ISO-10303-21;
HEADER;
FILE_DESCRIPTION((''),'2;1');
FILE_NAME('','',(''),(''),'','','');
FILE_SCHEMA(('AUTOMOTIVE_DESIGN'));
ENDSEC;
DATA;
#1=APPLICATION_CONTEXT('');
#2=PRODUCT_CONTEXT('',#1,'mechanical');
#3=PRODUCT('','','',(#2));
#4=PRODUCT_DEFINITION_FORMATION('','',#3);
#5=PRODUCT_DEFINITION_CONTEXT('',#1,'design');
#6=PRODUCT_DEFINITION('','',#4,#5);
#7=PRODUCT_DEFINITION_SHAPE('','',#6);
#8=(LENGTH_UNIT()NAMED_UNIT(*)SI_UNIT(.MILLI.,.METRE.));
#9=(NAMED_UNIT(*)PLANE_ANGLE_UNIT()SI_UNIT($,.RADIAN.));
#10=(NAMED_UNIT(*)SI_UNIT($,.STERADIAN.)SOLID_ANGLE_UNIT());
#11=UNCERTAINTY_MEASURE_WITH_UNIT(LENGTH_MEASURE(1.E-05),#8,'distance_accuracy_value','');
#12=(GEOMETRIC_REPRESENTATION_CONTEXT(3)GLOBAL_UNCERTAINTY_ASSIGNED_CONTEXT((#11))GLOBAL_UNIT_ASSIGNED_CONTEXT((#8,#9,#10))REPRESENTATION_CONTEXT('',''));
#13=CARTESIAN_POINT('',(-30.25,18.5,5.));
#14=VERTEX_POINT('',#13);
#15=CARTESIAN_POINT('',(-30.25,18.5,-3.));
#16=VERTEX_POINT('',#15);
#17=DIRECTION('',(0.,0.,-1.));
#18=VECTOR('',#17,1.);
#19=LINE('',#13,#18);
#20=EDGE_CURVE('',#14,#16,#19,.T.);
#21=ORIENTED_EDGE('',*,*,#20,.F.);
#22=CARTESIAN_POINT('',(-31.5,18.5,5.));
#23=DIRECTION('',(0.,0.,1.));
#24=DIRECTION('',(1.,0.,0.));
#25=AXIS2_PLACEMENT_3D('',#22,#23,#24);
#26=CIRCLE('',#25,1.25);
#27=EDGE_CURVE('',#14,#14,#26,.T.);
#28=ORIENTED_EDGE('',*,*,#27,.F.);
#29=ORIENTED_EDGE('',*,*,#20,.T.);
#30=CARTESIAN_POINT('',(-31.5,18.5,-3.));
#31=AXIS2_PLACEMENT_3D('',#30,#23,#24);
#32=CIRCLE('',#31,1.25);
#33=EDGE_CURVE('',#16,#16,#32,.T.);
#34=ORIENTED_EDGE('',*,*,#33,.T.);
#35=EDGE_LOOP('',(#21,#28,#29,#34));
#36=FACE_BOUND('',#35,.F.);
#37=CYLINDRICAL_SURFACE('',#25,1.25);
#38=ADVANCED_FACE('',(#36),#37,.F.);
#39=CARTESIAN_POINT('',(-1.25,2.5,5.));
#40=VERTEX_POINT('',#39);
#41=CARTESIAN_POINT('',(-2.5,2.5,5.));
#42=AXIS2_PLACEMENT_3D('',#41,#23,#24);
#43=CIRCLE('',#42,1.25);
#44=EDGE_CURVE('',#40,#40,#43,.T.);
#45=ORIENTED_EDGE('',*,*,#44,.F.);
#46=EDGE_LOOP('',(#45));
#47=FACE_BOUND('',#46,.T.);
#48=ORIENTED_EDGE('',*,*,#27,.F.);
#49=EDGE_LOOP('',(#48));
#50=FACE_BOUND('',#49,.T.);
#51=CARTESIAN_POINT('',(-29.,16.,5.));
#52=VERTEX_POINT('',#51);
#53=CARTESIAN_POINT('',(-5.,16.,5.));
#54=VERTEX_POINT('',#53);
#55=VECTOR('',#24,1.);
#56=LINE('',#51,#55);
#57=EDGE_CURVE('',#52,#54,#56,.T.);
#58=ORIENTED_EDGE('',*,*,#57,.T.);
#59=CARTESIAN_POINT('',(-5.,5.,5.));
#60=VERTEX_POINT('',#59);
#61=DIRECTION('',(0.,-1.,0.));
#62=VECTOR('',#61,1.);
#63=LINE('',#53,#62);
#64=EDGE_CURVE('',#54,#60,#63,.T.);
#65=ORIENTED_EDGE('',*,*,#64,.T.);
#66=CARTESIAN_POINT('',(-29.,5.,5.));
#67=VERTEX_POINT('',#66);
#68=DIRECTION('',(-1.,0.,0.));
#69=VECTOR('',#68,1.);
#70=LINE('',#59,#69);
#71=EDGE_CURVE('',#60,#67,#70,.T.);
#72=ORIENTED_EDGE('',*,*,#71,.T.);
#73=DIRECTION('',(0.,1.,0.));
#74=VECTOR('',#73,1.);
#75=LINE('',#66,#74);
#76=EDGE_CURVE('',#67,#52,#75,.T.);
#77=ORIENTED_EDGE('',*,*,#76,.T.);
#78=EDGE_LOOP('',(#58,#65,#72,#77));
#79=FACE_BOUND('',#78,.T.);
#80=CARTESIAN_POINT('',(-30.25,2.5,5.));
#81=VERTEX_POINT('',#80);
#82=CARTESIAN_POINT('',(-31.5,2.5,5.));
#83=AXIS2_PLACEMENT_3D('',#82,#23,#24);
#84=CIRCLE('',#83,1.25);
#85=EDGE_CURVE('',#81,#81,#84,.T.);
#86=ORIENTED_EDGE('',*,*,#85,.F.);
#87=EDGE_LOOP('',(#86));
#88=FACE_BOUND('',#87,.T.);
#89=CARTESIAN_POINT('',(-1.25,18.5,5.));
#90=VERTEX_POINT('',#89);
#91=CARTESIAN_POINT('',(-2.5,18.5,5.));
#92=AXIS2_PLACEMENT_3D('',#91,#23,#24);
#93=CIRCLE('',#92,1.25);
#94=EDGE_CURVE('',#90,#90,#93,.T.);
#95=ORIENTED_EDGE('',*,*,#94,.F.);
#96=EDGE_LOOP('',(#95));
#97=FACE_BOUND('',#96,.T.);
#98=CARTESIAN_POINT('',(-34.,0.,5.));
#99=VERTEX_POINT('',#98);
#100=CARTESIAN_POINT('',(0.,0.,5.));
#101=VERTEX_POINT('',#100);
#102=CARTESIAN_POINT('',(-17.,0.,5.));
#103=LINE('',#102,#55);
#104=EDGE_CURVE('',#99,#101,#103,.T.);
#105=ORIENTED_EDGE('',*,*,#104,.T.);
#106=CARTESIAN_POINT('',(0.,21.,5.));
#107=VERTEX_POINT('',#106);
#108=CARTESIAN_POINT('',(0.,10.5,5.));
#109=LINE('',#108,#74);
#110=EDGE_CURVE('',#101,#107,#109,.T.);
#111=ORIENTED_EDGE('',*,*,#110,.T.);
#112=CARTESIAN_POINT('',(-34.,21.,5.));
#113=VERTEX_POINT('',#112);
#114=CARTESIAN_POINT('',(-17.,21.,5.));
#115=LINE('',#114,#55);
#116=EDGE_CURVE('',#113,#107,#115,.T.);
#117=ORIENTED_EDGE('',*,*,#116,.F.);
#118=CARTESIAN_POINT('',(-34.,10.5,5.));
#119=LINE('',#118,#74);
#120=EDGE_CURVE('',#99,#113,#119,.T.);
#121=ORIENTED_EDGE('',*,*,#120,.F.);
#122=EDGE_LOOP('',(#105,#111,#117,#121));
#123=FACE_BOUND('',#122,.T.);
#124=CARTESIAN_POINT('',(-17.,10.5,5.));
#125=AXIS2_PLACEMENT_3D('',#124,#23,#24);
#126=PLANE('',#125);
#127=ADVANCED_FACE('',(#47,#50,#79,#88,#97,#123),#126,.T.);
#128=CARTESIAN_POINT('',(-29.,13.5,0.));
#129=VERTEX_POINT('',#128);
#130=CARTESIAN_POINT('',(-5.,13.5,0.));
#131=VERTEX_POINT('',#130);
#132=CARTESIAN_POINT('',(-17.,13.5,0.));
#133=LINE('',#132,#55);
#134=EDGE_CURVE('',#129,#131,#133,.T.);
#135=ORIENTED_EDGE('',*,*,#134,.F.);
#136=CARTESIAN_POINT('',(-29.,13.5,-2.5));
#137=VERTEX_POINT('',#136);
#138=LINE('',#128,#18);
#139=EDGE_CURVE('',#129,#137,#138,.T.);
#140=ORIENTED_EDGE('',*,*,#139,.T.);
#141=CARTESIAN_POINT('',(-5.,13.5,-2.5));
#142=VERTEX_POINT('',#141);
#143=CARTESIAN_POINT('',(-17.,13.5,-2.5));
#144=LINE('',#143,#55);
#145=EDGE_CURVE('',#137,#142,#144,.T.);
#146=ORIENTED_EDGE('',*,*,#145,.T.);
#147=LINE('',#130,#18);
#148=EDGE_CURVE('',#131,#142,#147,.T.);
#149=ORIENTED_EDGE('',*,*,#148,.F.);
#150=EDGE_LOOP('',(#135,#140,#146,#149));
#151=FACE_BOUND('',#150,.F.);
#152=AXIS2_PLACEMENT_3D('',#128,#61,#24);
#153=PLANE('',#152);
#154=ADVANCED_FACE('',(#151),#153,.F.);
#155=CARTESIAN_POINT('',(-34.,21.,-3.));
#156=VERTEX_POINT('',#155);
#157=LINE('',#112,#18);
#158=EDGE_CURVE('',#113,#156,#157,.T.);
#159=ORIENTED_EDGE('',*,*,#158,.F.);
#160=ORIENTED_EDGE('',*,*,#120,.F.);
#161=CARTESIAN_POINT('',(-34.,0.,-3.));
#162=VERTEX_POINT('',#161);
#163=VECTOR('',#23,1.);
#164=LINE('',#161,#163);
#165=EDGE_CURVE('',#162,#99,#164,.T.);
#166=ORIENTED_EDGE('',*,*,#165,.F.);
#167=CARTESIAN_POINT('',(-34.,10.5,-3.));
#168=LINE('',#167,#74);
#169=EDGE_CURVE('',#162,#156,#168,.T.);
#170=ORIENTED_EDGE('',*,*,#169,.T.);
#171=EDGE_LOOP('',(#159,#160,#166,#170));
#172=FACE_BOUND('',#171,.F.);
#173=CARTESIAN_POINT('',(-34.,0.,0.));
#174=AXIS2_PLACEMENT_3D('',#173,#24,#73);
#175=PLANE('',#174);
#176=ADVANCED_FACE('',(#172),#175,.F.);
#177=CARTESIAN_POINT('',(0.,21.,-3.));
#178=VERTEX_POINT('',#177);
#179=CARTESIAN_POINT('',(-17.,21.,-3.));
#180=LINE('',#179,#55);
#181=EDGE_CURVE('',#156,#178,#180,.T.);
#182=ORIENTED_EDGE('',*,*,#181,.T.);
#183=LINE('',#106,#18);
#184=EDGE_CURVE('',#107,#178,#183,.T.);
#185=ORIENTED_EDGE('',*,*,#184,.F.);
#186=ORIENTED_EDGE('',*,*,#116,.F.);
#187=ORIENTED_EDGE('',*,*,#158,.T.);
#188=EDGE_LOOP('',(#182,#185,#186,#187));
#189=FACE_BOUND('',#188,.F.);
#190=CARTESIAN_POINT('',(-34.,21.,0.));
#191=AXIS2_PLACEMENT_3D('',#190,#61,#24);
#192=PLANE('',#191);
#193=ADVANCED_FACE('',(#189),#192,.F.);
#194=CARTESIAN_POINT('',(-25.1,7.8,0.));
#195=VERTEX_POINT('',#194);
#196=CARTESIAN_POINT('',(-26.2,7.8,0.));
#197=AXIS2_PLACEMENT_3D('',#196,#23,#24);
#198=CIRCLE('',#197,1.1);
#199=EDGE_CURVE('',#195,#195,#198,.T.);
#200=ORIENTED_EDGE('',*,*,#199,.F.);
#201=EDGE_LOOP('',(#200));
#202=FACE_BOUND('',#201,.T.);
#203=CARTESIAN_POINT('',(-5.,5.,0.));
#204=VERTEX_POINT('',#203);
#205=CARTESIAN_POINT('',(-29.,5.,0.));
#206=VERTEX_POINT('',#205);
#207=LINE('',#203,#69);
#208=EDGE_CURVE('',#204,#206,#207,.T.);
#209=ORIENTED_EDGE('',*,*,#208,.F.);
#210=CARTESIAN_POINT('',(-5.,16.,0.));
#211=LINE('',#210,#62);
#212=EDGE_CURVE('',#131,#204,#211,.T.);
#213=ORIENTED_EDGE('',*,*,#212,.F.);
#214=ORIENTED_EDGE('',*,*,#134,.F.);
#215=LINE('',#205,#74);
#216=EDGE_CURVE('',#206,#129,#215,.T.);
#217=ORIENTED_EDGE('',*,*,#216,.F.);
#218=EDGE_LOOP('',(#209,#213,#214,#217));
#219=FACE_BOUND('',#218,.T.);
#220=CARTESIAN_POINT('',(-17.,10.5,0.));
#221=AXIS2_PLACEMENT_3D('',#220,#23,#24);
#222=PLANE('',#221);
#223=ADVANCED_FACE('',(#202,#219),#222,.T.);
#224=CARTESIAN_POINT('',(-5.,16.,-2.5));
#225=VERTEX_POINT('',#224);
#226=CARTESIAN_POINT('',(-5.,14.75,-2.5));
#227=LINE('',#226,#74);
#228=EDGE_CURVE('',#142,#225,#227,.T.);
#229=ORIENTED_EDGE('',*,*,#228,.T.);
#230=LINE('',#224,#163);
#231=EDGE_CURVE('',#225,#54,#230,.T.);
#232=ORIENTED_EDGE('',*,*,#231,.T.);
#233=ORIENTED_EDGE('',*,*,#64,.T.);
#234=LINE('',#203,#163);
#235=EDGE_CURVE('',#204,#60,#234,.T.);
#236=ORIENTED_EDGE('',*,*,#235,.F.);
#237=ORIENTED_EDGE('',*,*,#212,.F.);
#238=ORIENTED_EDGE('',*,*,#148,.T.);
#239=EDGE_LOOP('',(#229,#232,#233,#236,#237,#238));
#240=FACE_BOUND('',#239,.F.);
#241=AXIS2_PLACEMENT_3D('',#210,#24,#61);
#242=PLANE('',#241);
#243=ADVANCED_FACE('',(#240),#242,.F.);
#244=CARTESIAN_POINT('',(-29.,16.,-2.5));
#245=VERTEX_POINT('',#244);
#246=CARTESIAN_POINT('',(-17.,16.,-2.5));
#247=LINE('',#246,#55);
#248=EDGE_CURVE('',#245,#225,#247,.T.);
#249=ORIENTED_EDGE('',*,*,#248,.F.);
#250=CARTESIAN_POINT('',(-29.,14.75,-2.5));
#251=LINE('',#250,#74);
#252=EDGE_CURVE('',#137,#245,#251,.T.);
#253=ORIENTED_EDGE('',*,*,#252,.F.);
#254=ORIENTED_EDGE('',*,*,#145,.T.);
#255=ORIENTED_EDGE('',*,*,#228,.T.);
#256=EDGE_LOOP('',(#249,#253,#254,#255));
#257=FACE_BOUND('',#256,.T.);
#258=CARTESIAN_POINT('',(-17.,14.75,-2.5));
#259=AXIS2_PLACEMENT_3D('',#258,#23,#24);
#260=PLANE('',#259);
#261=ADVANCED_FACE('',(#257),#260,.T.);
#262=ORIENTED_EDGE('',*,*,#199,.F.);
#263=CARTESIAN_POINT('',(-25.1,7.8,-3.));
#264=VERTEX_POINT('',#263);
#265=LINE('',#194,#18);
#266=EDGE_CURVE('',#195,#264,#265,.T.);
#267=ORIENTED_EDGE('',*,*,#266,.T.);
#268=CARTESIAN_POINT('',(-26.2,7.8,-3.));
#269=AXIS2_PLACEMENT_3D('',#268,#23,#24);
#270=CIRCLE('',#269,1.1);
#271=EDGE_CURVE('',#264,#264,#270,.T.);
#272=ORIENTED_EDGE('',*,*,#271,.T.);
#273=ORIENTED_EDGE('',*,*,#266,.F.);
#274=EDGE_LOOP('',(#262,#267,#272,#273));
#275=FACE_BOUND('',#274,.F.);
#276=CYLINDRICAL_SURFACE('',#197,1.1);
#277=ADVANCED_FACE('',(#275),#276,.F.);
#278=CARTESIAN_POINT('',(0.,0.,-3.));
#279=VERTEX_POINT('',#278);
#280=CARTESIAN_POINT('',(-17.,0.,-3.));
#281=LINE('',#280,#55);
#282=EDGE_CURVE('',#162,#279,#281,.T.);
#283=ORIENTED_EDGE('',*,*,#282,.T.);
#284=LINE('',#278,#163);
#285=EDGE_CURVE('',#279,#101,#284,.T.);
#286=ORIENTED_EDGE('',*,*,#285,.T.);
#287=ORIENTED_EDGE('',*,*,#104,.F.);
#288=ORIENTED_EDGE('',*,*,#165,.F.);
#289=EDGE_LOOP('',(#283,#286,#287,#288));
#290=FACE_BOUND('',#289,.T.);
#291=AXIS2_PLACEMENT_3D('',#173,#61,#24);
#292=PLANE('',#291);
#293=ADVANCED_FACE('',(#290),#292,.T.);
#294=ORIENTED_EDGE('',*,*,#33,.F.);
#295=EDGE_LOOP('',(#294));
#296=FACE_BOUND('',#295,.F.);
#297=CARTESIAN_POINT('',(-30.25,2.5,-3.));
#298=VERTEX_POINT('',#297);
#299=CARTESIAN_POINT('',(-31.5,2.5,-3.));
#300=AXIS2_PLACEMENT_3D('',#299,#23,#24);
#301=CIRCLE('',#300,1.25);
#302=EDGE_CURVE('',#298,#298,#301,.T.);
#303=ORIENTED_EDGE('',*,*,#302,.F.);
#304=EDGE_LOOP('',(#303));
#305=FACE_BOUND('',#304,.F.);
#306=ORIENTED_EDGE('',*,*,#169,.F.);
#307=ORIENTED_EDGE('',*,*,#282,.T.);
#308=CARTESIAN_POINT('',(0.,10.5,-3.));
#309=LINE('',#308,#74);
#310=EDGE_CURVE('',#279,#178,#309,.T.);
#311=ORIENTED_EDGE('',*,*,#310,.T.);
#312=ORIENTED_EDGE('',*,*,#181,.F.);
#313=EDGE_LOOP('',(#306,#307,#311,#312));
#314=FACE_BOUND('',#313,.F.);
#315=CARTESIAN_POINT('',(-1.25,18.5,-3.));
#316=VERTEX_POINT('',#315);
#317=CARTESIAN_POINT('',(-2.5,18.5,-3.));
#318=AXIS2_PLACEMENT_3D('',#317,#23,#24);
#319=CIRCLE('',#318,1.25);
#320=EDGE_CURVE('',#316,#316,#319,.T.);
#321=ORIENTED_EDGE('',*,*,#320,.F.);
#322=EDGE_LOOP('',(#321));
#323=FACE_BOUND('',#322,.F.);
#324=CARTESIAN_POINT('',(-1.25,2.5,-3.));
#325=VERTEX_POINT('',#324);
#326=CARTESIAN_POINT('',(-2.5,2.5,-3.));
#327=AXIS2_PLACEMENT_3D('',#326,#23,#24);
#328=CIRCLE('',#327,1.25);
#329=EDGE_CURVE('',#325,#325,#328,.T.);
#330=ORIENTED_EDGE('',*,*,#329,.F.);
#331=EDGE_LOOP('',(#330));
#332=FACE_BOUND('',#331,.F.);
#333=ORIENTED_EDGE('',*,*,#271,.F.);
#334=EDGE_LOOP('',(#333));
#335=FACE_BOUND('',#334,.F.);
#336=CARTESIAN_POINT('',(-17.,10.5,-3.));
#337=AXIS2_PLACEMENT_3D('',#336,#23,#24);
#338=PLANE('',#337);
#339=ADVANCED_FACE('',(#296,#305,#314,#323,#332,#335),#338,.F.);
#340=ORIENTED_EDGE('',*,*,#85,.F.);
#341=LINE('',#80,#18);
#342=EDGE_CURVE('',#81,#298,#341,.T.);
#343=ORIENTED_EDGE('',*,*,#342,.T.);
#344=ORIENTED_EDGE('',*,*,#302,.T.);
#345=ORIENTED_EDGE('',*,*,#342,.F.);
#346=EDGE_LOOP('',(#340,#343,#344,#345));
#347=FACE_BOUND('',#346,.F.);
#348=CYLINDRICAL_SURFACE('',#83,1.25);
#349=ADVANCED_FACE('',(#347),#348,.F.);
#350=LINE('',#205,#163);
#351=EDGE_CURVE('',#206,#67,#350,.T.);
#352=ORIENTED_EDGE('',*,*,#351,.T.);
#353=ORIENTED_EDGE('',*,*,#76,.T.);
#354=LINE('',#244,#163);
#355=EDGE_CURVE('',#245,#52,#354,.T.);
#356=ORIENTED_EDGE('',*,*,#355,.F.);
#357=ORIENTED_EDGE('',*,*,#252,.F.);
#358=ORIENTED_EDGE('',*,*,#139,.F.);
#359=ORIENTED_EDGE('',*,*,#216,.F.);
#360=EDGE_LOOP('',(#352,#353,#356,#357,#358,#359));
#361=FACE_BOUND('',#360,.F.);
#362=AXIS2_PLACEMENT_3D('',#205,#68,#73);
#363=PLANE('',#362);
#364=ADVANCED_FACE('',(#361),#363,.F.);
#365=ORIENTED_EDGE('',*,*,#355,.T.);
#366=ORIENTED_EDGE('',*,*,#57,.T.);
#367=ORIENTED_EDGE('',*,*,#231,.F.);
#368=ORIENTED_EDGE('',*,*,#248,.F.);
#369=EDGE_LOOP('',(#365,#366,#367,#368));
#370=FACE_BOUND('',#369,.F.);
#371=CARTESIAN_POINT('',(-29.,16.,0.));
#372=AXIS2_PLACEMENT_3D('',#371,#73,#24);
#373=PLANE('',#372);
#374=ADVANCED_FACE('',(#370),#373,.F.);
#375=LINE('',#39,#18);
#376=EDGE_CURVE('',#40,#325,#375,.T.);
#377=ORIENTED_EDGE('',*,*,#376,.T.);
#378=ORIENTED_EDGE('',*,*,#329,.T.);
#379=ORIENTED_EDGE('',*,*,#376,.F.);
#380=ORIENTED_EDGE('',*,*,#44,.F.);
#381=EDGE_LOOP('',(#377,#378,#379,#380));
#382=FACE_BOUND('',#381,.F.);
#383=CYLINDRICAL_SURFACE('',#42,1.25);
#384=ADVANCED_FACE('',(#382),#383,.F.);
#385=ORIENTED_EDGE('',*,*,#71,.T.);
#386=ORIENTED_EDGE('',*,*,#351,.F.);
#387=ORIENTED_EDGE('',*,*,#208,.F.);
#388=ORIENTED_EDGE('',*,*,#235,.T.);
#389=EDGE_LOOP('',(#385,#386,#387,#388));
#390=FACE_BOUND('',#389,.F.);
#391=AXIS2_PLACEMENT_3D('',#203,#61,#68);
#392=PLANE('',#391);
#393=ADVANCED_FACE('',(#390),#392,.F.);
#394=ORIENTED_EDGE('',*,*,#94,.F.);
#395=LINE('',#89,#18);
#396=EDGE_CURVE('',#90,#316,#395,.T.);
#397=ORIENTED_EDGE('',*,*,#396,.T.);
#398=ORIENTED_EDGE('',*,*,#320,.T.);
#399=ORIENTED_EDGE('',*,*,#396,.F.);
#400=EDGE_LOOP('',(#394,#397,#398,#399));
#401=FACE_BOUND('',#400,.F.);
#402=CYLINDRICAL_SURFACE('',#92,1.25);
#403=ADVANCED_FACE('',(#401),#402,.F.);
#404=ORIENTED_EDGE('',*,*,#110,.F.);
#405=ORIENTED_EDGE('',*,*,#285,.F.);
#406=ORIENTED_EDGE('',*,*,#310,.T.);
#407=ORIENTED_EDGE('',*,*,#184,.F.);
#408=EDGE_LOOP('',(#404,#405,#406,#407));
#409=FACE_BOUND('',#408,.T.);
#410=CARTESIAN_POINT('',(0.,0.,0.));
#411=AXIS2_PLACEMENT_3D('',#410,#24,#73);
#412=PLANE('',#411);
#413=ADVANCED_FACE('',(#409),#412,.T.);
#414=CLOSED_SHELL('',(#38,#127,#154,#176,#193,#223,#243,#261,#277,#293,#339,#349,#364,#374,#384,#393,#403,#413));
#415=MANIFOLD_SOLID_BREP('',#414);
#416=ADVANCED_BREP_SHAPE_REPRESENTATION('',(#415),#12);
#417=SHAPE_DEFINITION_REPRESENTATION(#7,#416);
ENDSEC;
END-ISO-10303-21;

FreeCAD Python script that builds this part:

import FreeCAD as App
import Part
import Sketcher
Q = App.Units.Quantity


def add_polygon(sketch, points):
    """Adds a closed chain of lines whose ends are joined by coincident constraints."""
    first, n = sketch.GeometryCount, len(points)
    for a, b in zip(points, points[1:] + points[:1]):
        sketch.addGeometry(Part.LineSegment(App.Vector(*a, 0), App.Vector(*b, 0)), False)
    for i in range(n):
        sketch.addConstraint(Sketcher.Constraint("Coincident", first + i, 2, first + (i + 1) % n, 1))

doc = App.newDocument("Part")
body = doc.addObject("PartDesign::Body", "Body")

sketch1 = body.newObject("Sketcher::SketchObject", "Sketch")
sketch1.AttachmentSupport = (doc.getObject("XY_Plane"), [""])
sketch1.MapMode = "FlatFace"
add_polygon(sketch1, [(-34, 21), (-34, 0), (0, 0), (0, 21)])
add_polygon(sketch1, [(-29, 5), (-29, 16), (-5, 16), (-5, 5)])
sketch1.addConstraint([
    Sketcher.Constraint("Vertical", 0),
    Sketcher.Constraint("Horizontal", 1),
    Sketcher.Constraint("Vertical", 2),
    Sketcher.Constraint("Horizontal", 3),
    Sketcher.Constraint("Vertical", 4),
    Sketcher.Constraint("Horizontal", 5),
    Sketcher.Constraint("Vertical", 6),
    Sketcher.Constraint("Horizontal", 7),
    Sketcher.Constraint("Coincident", 1, 2, -1, 1),
    Sketcher.Constraint("DistanceX", 1, 1, 1, 2, Q("34 mm")),
    Sketcher.Constraint("DistanceX", 5, 1, 5, 2, Q("24 mm")),
    Sketcher.Constraint("DistanceY", 0, 2, 0, 1, Q("21 mm")),
    Sketcher.Constraint("DistanceY", 4, 1, 4, 2, Q("11 mm")),
    Sketcher.Constraint("DistanceX", 4, 2, -1, 1, Q("29 mm")),
    Sketcher.Constraint("DistanceY", -1, 1, 4, 2, Q("16 mm")),
])
pad1 = body.newObject("PartDesign::Pad", "Pad")
pad1.Profile = sketch1
pad1.Length = 5

sketch2 = body.newObject("Sketcher::SketchObject", "Sketch001")
sketch2.AttachmentSupport = (doc.getObject("XY_Plane"), [""])
sketch2.MapMode = "FlatFace"
add_polygon(sketch2, [(-34, 21), (-34, 0), (0, 0), (0, 21)])
sketch2.addConstraint([
    Sketcher.Constraint("Vertical", 0),
    Sketcher.Constraint("Horizontal", 1),
    Sketcher.Constraint("Vertical", 2),
    Sketcher.Constraint("Horizontal", 3),
    Sketcher.Constraint("Coincident", 1, 2, -1, 1),
    Sketcher.Constraint("DistanceX", 1, 1, 1, 2, Q("34 mm")),
    Sketcher.Constraint("DistanceY", 0, 2, 0, 1, Q("21 mm")),
])
pad2 = body.newObject("PartDesign::Pad", "Pad001")
pad2.Profile = sketch2
pad2.Length = 3
pad2.Reversed = True

sketch3 = body.newObject("Sketcher::SketchObject", "Sketch002")
sketch3.AttachmentSupport = (doc.getObject("XY_Plane"), [""])
sketch3.MapMode = "FlatFace"
add_polygon(sketch3, [(-29, 16), (-29, 13.5), (-5, 13.5), (-5, 16)])
sketch3.addConstraint([
    Sketcher.Constraint("Vertical", 0),
    Sketcher.Constraint("Horizontal", 1),
    Sketcher.Constraint("Vertical", 2),
    Sketcher.Constraint("Horizontal", 3),
    Sketcher.Constraint("DistanceX", 1, 1, 1, 2, Q("24 mm")),
    Sketcher.Constraint("DistanceY", 0, 2, 0, 1, Q("2.5 mm")),
    Sketcher.Constraint("DistanceX", 0, 2, -1, 1, Q("29 mm")),
    Sketcher.Constraint("DistanceY", -1, 1, 2, 2, Q("16 mm")),
])
pocket1 = body.newObject("PartDesign::Pocket", "Pocket")
pocket1.Profile = sketch3
pocket1.Length = 2.5

sketch4 = body.newObject("Sketcher::SketchObject", "Sketch003")
sketch4.AttachmentSupport = (doc.getObject("XY_Plane"), [""])
sketch4.MapMode = "FlatFace"
sketch4.addGeometry(Part.Circle(App.Vector(-26.2, 7.8, 0), App.Vector(0, 0, 1), 1.1), False)
sketch4.addConstraint([
    Sketcher.Constraint("Diameter", 0, Q("2.2 mm")),
    Sketcher.Constraint("DistanceX", 0, 3, -1, 1, Q("26.2 mm")),
    Sketcher.Constraint("DistanceY", -1, 1, 0, 3, Q("7.8 mm")),
])
pocket2 = body.newObject("PartDesign::Pocket", "Pocket001")
pocket2.Profile = sketch4
pocket2.Type = "ThroughAll"

sketch5 = body.newObject("Sketcher::SketchObject", "Sketch004")
sketch5.AttachmentSupport = (doc.getObject("XY_Plane"), [""])
sketch5.MapMode = "FlatFace"
sketch5.AttachmentOffset = App.Placement(App.Vector(0, 0, 5), App.Rotation())
sketch5.addGeometry([
    Part.Circle(App.Vector(-31.5, 18.5, 0), App.Vector(0, 0, 1), 1.2),
    Part.Circle(App.Vector(-2.5, 18.5, 0), App.Vector(0, 0, 1), 1.2),
    Part.Circle(App.Vector(-2.5, 2.5, 0), App.Vector(0, 0, 1), 1.2),
    Part.Circle(App.Vector(-31.5, 2.5, 0), App.Vector(0, 0, 1), 1.2),
], False)
sketch5.addConstraint([
    Sketcher.Constraint("Equal", 0, 1),
    Sketcher.Constraint("Equal", 1, 2),
    Sketcher.Constraint("Equal", 2, 3),
    Sketcher.Constraint("Horizontal", 0, 3, 1, 3),
    Sketcher.Constraint("Horizontal", 2, 3, 3, 3),
    Sketcher.Constraint("Vertical", 1, 3, 2, 3),
    Sketcher.Constraint("Vertical", 0, 3, 3, 3),
    Sketcher.Constraint("Diameter", 0, Q("2.5 mm")),
    Sketcher.Constraint("DistanceX", 0, 3, 1, 3, Q("29 mm")),
    Sketcher.Constraint("DistanceY", 2, 3, 1, 3, Q("16 mm")),
    Sketcher.Constraint("DistanceX", 0, 3, -1, 1, Q("31.5 mm")),
    Sketcher.Constraint("DistanceY", -1, 1, 0, 3, Q("18.5 mm")),
])
pocket3 = body.newObject("PartDesign::Pocket", "Pocket002")
pocket3.Profile = sketch5
pocket3.Type = "ThroughAll"

doc.recompute()
